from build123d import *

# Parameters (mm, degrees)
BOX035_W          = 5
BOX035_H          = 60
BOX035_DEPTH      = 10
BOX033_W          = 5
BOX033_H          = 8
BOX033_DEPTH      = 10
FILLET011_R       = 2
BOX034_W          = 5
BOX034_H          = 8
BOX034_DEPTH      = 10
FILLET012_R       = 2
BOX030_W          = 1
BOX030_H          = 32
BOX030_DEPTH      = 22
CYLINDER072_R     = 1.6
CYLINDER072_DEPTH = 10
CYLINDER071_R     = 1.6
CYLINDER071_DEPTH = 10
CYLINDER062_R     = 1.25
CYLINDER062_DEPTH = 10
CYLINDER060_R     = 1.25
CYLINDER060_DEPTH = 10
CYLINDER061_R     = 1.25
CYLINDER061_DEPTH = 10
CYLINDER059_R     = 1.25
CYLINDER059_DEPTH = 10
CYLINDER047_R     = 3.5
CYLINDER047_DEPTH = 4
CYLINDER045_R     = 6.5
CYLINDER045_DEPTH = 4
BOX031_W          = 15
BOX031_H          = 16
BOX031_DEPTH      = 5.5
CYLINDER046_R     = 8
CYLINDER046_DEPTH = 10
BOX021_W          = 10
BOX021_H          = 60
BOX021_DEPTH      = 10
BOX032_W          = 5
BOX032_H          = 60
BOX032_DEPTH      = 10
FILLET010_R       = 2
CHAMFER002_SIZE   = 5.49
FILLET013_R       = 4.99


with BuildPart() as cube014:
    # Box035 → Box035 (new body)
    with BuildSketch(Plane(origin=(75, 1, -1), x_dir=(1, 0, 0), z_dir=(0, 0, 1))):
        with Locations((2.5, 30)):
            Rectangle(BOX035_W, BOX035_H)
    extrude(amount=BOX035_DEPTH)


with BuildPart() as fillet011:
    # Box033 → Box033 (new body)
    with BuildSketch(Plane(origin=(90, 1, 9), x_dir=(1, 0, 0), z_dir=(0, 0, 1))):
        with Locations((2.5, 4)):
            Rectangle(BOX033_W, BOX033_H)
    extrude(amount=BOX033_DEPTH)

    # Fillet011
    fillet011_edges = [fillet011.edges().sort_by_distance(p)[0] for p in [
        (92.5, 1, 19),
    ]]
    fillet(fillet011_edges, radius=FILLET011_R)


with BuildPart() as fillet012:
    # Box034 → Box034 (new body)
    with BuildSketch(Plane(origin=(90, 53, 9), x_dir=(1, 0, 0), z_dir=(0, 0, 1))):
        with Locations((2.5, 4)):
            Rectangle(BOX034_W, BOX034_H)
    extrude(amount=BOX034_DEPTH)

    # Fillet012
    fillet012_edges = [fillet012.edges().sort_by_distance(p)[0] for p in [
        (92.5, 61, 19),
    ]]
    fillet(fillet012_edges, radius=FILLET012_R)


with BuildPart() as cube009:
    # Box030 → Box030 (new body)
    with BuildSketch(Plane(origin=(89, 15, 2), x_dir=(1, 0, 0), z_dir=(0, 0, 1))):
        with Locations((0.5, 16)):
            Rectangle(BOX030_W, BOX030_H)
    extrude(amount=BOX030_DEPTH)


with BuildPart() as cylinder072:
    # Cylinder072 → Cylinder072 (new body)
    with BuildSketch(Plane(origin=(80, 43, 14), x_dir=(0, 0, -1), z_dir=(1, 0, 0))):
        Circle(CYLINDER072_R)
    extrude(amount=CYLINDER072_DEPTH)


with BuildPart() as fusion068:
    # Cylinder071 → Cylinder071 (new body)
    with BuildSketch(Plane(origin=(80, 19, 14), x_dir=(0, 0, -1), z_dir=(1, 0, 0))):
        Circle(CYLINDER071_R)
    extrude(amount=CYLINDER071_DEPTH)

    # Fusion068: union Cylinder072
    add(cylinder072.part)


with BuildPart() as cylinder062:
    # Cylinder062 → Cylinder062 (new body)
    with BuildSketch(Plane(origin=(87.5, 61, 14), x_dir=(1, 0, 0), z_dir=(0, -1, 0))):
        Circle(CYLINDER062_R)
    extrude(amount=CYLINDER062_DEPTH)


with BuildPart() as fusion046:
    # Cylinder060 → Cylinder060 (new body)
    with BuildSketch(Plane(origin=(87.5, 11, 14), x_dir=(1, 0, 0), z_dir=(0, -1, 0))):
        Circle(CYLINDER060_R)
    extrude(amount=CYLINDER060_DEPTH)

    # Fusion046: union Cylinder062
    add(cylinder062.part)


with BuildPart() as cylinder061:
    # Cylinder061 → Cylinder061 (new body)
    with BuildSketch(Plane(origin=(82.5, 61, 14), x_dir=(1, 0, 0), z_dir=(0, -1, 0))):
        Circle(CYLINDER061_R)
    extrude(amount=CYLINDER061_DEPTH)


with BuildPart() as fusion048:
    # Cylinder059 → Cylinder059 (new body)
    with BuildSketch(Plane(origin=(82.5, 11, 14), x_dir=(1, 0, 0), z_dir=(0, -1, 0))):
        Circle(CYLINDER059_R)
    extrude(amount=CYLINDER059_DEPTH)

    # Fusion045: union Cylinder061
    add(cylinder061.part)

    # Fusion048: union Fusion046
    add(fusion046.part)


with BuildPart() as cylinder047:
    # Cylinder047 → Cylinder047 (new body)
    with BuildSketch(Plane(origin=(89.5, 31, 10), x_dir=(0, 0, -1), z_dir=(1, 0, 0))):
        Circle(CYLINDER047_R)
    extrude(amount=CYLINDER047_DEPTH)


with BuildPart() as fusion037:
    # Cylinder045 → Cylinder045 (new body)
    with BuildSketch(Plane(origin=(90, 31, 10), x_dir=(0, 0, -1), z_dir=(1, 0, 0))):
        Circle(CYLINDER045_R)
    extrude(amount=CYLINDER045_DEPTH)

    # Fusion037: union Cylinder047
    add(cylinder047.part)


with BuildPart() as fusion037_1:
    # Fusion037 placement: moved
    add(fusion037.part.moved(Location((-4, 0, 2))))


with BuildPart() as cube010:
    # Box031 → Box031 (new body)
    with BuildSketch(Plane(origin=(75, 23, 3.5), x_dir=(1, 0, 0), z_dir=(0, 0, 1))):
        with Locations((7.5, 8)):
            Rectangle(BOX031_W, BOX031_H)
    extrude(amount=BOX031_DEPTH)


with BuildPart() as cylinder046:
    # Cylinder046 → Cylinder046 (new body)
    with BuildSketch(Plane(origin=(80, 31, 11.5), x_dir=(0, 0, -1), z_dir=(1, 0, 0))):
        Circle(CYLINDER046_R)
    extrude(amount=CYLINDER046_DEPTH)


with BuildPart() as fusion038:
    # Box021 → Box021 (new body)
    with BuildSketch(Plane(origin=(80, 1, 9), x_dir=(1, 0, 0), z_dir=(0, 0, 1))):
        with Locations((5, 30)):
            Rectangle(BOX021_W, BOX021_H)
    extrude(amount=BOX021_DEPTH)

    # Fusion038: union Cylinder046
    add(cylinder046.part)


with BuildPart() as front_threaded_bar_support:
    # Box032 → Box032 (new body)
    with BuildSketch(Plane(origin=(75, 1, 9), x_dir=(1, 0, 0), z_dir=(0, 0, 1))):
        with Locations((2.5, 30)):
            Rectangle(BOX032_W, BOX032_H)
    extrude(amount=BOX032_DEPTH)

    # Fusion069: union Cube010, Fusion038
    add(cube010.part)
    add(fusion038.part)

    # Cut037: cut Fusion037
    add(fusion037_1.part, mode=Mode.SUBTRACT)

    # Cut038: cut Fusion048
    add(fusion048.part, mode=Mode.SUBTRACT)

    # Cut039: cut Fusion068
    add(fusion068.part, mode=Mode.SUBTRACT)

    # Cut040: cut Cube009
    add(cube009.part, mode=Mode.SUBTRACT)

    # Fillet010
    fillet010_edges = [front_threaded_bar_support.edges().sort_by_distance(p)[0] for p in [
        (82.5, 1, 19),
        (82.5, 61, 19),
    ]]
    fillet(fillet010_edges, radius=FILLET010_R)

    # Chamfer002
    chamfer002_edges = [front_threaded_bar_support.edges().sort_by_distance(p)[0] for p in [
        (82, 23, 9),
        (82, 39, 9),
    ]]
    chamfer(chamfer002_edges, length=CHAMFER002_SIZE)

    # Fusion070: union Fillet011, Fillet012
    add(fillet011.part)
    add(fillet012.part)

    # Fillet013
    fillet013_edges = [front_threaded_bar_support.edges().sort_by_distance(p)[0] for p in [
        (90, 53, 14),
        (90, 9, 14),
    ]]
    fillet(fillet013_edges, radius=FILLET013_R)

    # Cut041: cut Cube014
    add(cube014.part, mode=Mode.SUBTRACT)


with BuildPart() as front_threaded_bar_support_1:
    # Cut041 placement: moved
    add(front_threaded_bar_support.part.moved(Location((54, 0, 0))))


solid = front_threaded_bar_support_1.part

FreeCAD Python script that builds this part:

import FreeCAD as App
import Part
import Sketcher
from FreeCAD import Vector


def edges_at(feature, points):
    """Names of the edges that pass closest to the given points."""
    edges = feature.Shape.Edges
    near = lambda p: min(range(len(edges)), key=lambda i: edges[i].distToShape(Part.Vertex(*p))[0])
    return sorted({f"Edge{near(p) + 1}" for p in points})

doc = App.newDocument("Part")
body = doc.addObject("PartDesign::Body", "Body")

sketch1 = body.newObject("Sketcher::SketchObject", "Sketch")
sketch1.AttachmentSupport = (doc.getObject("XY_Plane"), [""])
sketch1.MapMode = "FlatFace"
sketch1.AttachmentOffset = App.Placement(Vector(0, 0, -1), App.Rotation())
sketch1.addGeometry([
    Part.LineSegment(Vector(75, 61, 0), Vector(75, 1, 0)),
    Part.LineSegment(Vector(75, 1, 0), Vector(80, 1, 0)),
    Part.LineSegment(Vector(80, 1, 0), Vector(80, 61, 0)),
    Part.LineSegment(Vector(80, 61, 0), Vector(75, 61, 0)),
], False)
sketch1.addConstraint([
    Sketcher.Constraint("Coincident", 0, 2, 1, 1),
    Sketcher.Constraint("Coincident", 1, 2, 2, 1),
    Sketcher.Constraint("Coincident", 2, 2, 3, 1),
    Sketcher.Constraint("Coincident", 3, 2, 0, 1),
    Sketcher.Constraint("Vertical", 0),
    Sketcher.Constraint("Horizontal", 1),
    Sketcher.Constraint("Vertical", 2),
    Sketcher.Constraint("Horizontal", 3),
    Sketcher.Constraint("DistanceX", 1, 1, 1, 2, 5.0),
    Sketcher.Constraint("DistanceY", 0, 2, 0, 1, 60.0),
    Sketcher.Constraint("DistanceX", -1, 1, 0, 2, 75.0),
    Sketcher.Constraint("DistanceY", -1, 1, 0, 2, 1.0),
])
pad1 = body.newObject("PartDesign::Pad", "Pad")
pad1.Profile = sketch1
pad1.Length = 10
body2 = doc.addObject("PartDesign::Body", "Body001")

sketch2 = body2.newObject("Sketcher::SketchObject", "Sketch001")
sketch2.AttachmentSupport = (doc.getObject("XY_Plane001"), [""])
sketch2.MapMode = "FlatFace"
sketch2.AttachmentOffset = App.Placement(Vector(0, 0, 9), App.Rotation())
sketch2.addGeometry([
    Part.LineSegment(Vector(90, 9, 0), Vector(90, 1, 0)),
    Part.LineSegment(Vector(90, 1, 0), Vector(95, 1, 0)),
    Part.LineSegment(Vector(95, 1, 0), Vector(95, 9, 0)),
    Part.LineSegment(Vector(95, 9, 0), Vector(90, 9, 0)),
], False)
sketch2.addConstraint([
    Sketcher.Constraint("Coincident", 0, 2, 1, 1),
    Sketcher.Constraint("Coincident", 1, 2, 2, 1),
    Sketcher.Constraint("Coincident", 2, 2, 3, 1),
    Sketcher.Constraint("Coincident", 3, 2, 0, 1),
    Sketcher.Constraint("Vertical", 0),
    Sketcher.Constraint("Horizontal", 1),
    Sketcher.Constraint("Vertical", 2),
    Sketcher.Constraint("Horizontal", 3),
    Sketcher.Constraint("DistanceX", 1, 1, 1, 2, 5.0),
    Sketcher.Constraint("DistanceY", 0, 2, 0, 1, 8.0),
    Sketcher.Constraint("DistanceX", -1, 1, 0, 2, 90.0),
    Sketcher.Constraint("DistanceY", -1, 1, 0, 2, 1.0),
])
pad2 = body2.newObject("PartDesign::Pad", "Pad001")
pad2.Profile = sketch2
pad2.Length = 10
doc.recompute()

fillet = body2.newObject("PartDesign::Fillet", "Fillet")
fillet.Base = (pad2, edges_at(pad2, [(92.5, 1, 19)]))
fillet.Radius = 2
body3 = doc.addObject("PartDesign::Body", "Body002")

sketch3 = body3.newObject("Sketcher::SketchObject", "Sketch002")
sketch3.AttachmentSupport = (doc.getObject("XY_Plane002"), [""])
sketch3.MapMode = "FlatFace"
sketch3.AttachmentOffset = App.Placement(Vector(0, 0, 9), App.Rotation())
sketch3.addGeometry([
    Part.LineSegment(Vector(90, 61, 0), Vector(90, 53, 0)),
    Part.LineSegment(Vector(90, 53, 0), Vector(95, 53, 0)),
    Part.LineSegment(Vector(95, 53, 0), Vector(95, 61, 0)),
    Part.LineSegment(Vector(95, 61, 0), Vector(90, 61, 0)),
], False)
sketch3.addConstraint([
    Sketcher.Constraint("Coincident", 0, 2, 1, 1),
    Sketcher.Constraint("Coincident", 1, 2, 2, 1),
    Sketcher.Constraint("Coincident", 2, 2, 3, 1),
    Sketcher.Constraint("Coincident", 3, 2, 0, 1),
    Sketcher.Constraint("Vertical", 0),
    Sketcher.Constraint("Horizontal", 1),
    Sketcher.Constraint("Vertical", 2),
    Sketcher.Constraint("Horizontal", 3),
    Sketcher.Constraint("DistanceX", 1, 1, 1, 2, 5.0),
    Sketcher.Constraint("DistanceY", 0, 2, 0, 1, 8.0),
    Sketcher.Constraint("DistanceX", -1, 1, 0, 2, 90.0),
    Sketcher.Constraint("DistanceY", -1, 1, 0, 2, 53.0),
])
pad3 = body3.newObject("PartDesign::Pad", "Pad002")
pad3.Profile = sketch3
pad3.Length = 10
doc.recompute()

fillet2 = body3.newObject("PartDesign::Fillet", "Fillet001")
fillet2.Base = (pad3, edges_at(pad3, [(92.5, 61, 19)]))
fillet2.Radius = 2
body4 = doc.addObject("PartDesign::Body", "Body003")

sketch4 = body4.newObject("Sketcher::SketchObject", "Sketch003")
sketch4.AttachmentSupport = (doc.getObject("XY_Plane003"), [""])
sketch4.MapMode = "FlatFace"
sketch4.AttachmentOffset = App.Placement(Vector(0, 0, 2), App.Rotation())
sketch4.addGeometry([
    Part.LineSegment(Vector(89, 47, 0), Vector(89, 15, 0)),
    Part.LineSegment(Vector(89, 15, 0), Vector(90, 15, 0)),
    Part.LineSegment(Vector(90, 15, 0), Vector(90, 47, 0)),
    Part.LineSegment(Vector(90, 47, 0), Vector(89, 47, 0)),
], False)
sketch4.addConstraint([
    Sketcher.Constraint("Coincident", 0, 2, 1, 1),
    Sketcher.Constraint("Coincident", 1, 2, 2, 1),
    Sketcher.Constraint("Coincident", 2, 2, 3, 1),
    Sketcher.Constraint("Coincident", 3, 2, 0, 1),
    Sketcher.Constraint("Vertical", 0),
    Sketcher.Constraint("Horizontal", 1),
    Sketcher.Constraint("Vertical", 2),
    Sketcher.Constraint("Horizontal", 3),
    Sketcher.Constraint("DistanceX", 1, 1, 1, 2, 1.0),
    Sketcher.Constraint("DistanceY", 0, 2, 0, 1, 32.0),
    Sketcher.Constraint("DistanceX", -1, 1, 0, 2, 89.0),
    Sketcher.Constraint("DistanceY", -1, 1, 0, 2, 15.0),
])
pad4 = body4.newObject("PartDesign::Pad", "Pad003")
pad4.Profile = sketch4
pad4.Length = 22
body5 = doc.addObject("PartDesign::Body", "Body004")

sketch5 = body5.newObject("Sketcher::SketchObject", "Sketch004")
sketch5.AttachmentSupport = (doc.getObject("YZ_Plane004"), [""])
sketch5.MapMode = "FlatFace"
sketch5.AttachmentOffset = App.Placement(Vector(0, 0, 80), App.Rotation())
sketch5.addGeometry(Part.Circle(Vector(43, 14, 0), Vector(0, 0, 1), 1.6), False)
sketch5.addConstraint([
    Sketcher.Constraint("Diameter", 0, 3.2),
    Sketcher.Constraint("DistanceX", -1, 1, 0, 3, 43.0),
    Sketcher.Constraint("DistanceY", -1, 1, 0, 3, 14.0),
])
pad5 = body5.newObject("PartDesign::Pad", "Pad004")
pad5.Profile = sketch5
pad5.Length = 10
body6 = doc.addObject("PartDesign::Body", "Body005")
body6.AllowCompound = True

sketch6 = body6.newObject("Sketcher::SketchObject", "Sketch005")
sketch6.AttachmentSupport = (doc.getObject("YZ_Plane005"), [""])
sketch6.MapMode = "FlatFace"
sketch6.AttachmentOffset = App.Placement(Vector(0, 0, 80), App.Rotation())
sketch6.addGeometry(Part.Circle(Vector(19, 14, 0), Vector(0, 0, 1), 1.6), False)
sketch6.addConstraint([
    Sketcher.Constraint("Diameter", 0, 3.2),
    Sketcher.Constraint("DistanceX", -1, 1, 0, 3, 19.0),
    Sketcher.Constraint("DistanceY", -1, 1, 0, 3, 14.0),
])
pad6 = body6.newObject("PartDesign::Pad", "Pad005")
pad6.Profile = sketch6
pad6.Length = 10
doc.recompute()

boolean = body6.newObject("PartDesign::Boolean", "Boolean")
boolean.Type = "Fuse"
boolean.addObjects([body5])
body7 = doc.addObject("PartDesign::Body", "Body006")

sketch7 = body7.newObject("Sketcher::SketchObject", "Sketch006")
sketch7.AttachmentSupport = (doc.getObject("XZ_Plane006"), [""])
sketch7.MapMode = "FlatFace"
sketch7.AttachmentOffset = App.Placement(Vector(0, 0, -61), App.Rotation())
sketch7.addGeometry(Part.Circle(Vector(87.5, 14, 0), Vector(0, 0, 1), 1.2), False)
sketch7.addConstraint([
    Sketcher.Constraint("Diameter", 0, 2.5),
    Sketcher.Constraint("DistanceY", -1, 1, 0, 3, 14.0),
    Sketcher.Constraint("DistanceX", -1, 1, 0, 3, 87.5),
])
pad7 = body7.newObject("PartDesign::Pad", "Pad006")
pad7.Profile = sketch7
pad7.Length = 10
body8 = doc.addObject("PartDesign::Body", "Body007")
body8.AllowCompound = True

sketch8 = body8.newObject("Sketcher::SketchObject", "Sketch007")
sketch8.AttachmentSupport = (doc.getObject("XZ_Plane007"), [""])
sketch8.MapMode = "FlatFace"
sketch8.AttachmentOffset = App.Placement(Vector(0, 0, -11), App.Rotation())
sketch8.addGeometry(Part.Circle(Vector(87.5, 14, 0), Vector(0, 0, 1), 1.2), False)
sketch8.addConstraint([
    Sketcher.Constraint("Diameter", 0, 2.5),
    Sketcher.Constraint("DistanceY", -1, 1, 0, 3, 14.0),
    Sketcher.Constraint("DistanceX", -1, 1, 0, 3, 87.5),
])
pad8 = body8.newObject("PartDesign::Pad", "Pad007")
pad8.Profile = sketch8
pad8.Length = 10
doc.recompute()

boolean2 = body8.newObject("PartDesign::Boolean", "Boolean001")
boolean2.Type = "Fuse"
boolean2.addObjects([body7])
body9 = doc.addObject("PartDesign::Body", "Body008")

sketch9 = body9.newObject("Sketcher::SketchObject", "Sketch008")
sketch9.AttachmentSupport = (doc.getObject("XZ_Plane008"), [""])
sketch9.MapMode = "FlatFace"
sketch9.AttachmentOffset = App.Placement(Vector(0, 0, -61), App.Rotation())
sketch9.addGeometry(Part.Circle(Vector(82.5, 14, 0), Vector(0, 0, 1), 1.2), False)
sketch9.addConstraint([
    Sketcher.Constraint("Diameter", 0, 2.5),
    Sketcher.Constraint("DistanceY", -1, 1, 0, 3, 14.0),
    Sketcher.Constraint("DistanceX", -1, 1, 0, 3, 82.5),
])
pad9 = body9.newObject("PartDesign::Pad", "Pad008")
pad9.Profile = sketch9
pad9.Length = 10
body10 = doc.addObject("PartDesign::Body", "Body009")
body10.AllowCompound = True

sketch10 = body10.newObject("Sketcher::SketchObject", "Sketch009")
sketch10.AttachmentSupport = (doc.getObject("XZ_Plane009"), [""])
sketch10.MapMode = "FlatFace"
sketch10.AttachmentOffset = App.Placement(Vector(0, 0, -11), App.Rotation())
sketch10.addGeometry(Part.Circle(Vector(82.5, 14, 0), Vector(0, 0, 1), 1.2), False)
sketch10.addConstraint([
    Sketcher.Constraint("Diameter", 0, 2.5),
    Sketcher.Constraint("DistanceY", -1, 1, 0, 3, 14.0),
    Sketcher.Constraint("DistanceX", -1, 1, 0, 3, 82.5),
])
pad10 = body10.newObject("PartDesign::Pad", "Pad009")
pad10.Profile = sketch10
pad10.Length = 10
doc.recompute()

boolean3 = body10.newObject("PartDesign::Boolean", "Boolean002")
boolean3.Type = "Fuse"
boolean3.addObjects([body9])
doc.recompute()

boolean4 = body10.newObject("PartDesign::Boolean", "Boolean003")
boolean4.Type = "Fuse"
boolean4.addObjects([body8])
body11 = doc.addObject("PartDesign::Body", "Body010")

sketch11 = body11.newObject("Sketcher::SketchObject", "Sketch010")
sketch11.AttachmentSupport = (doc.getObject("YZ_Plane010"), [""])
sketch11.MapMode = "FlatFace"
sketch11.AttachmentOffset = App.Placement(Vector(0, 0, 89.5), App.Rotation())
sketch11.addGeometry(Part.Circle(Vector(31, 10, 0), Vector(0, 0, 1), 3.5), False)
sketch11.addConstraint([
    Sketcher.Constraint("Diameter", 0, 7.0),
    Sketcher.Constraint("DistanceX", -1, 1, 0, 3, 31.0),
    Sketcher.Constraint("DistanceY", -1, 1, 0, 3, 10.0),
])
pad11 = body11.newObject("PartDesign::Pad", "Pad010")
pad11.Profile = sketch11
pad11.Length = 4
body12 = doc.addObject("PartDesign::Body", "Body011")

sketch12 = body12.newObject("Sketcher::SketchObject", "Sketch011")
sketch12.AttachmentSupport = (doc.getObject("YZ_Plane011"), [""])
sketch12.MapMode = "FlatFace"
sketch12.AttachmentOffset = App.Placement(Vector(0, 0, 90), App.Rotation())
sketch12.addGeometry(Part.Circle(Vector(31, 10, 0), Vector(0, 0, 1), 6), False)
sketch12.addConstraint([
    Sketcher.Constraint("Diameter", 0, 13.0),
    Sketcher.Constraint("DistanceX", -1, 1, 0, 3, 31.0),
    Sketcher.Constraint("DistanceY", -1, 1, 0, 3, 10.0),
])
pad12 = body12.newObject("PartDesign::Pad", "Pad011")
pad12.Profile = sketch12
pad12.Length = 4
doc.recompute()

boolean5 = body12.newObject("PartDesign::Boolean", "Boolean004")
boolean5.Type = "Fuse"
boolean5.addObjects([body11])
body13 = doc.addObject("PartDesign::Body", "Body012")
doc.recompute()

body12.Placement = App.Placement(Vector(-4, 0, 2), App.Rotation(Vector(0, 0, 1), 0))
boolean6 = body13.newObject("PartDesign::Boolean", "Boolean005")
boolean6.Type = "Fuse"
boolean6.addObjects([body12])
body14 = doc.addObject("PartDesign::Body", "Body013")

sketch13 = body14.newObject("Sketcher::SketchObject", "Sketch012")
sketch13.AttachmentSupport = (doc.getObject("XY_Plane013"), [""])
sketch13.MapMode = "FlatFace"
sketch13.AttachmentOffset = App.Placement(Vector(0, 0, 3.5), App.Rotation())
sketch13.addGeometry([
    Part.LineSegment(Vector(75, 39, 0), Vector(75, 23, 0)),
    Part.LineSegment(Vector(75, 23, 0), Vector(90, 23, 0)),
    Part.LineSegment(Vector(90, 23, 0), Vector(90, 39, 0)),
    Part.LineSegment(Vector(90, 39, 0), Vector(75, 39, 0)),
], False)
sketch13.addConstraint([
    Sketcher.Constraint("Coincident", 0, 2, 1, 1),
    Sketcher.Constraint("Coincident", 1, 2, 2, 1),
    Sketcher.Constraint("Coincident", 2, 2, 3, 1),
    Sketcher.Constraint("Coincident", 3, 2, 0, 1),
    Sketcher.Constraint("Vertical", 0),
    Sketcher.Constraint("Horizontal", 1),
    Sketcher.Constraint("Vertical", 2),
    Sketcher.Constraint("Horizontal", 3),
    Sketcher.Constraint("DistanceX", 1, 1, 1, 2, 15.0),
    Sketcher.Constraint("DistanceY", 0, 2, 0, 1, 16.0),
    Sketcher.Constraint("DistanceX", -1, 1, 0, 2, 75.0),
    Sketcher.Constraint("DistanceY", -1, 1, 0, 2, 23.0),
])
pad13 = body14.newObject("PartDesign::Pad", "Pad012")
pad13.Profile = sketch13
pad13.Length = 5.5
body15 = doc.addObject("PartDesign::Body", "Body014")

sketch14 = body15.newObject("Sketcher::SketchObject", "Sketch013")
sketch14.AttachmentSupport = (doc.getObject("YZ_Plane014"), [""])
sketch14.MapMode = "FlatFace"
sketch14.AttachmentOffset = App.Placement(Vector(0, 0, 80), App.Rotation())
sketch14.addGeometry(Part.Circle(Vector(31, 12, 0), Vector(0, 0, 1), 8), False)
sketch14.addConstraint([
    Sketcher.Constraint("Diameter", 0, 16.0),
    Sketcher.Constraint("DistanceX", -1, 1, 0, 3, 31.0),
    Sketcher.Constraint("DistanceY", -1, 1, 0, 3, 11.5),
])
pad14 = body15.newObject("PartDesign::Pad", "Pad013")
pad14.Profile = sketch14
pad14.Length = 10
body16 = doc.addObject("PartDesign::Body", "Body015")

sketch15 = body16.newObject("Sketcher::SketchObject", "Sketch014")
sketch15.AttachmentSupport = (doc.getObject("XY_Plane015"), [""])
sketch15.MapMode = "FlatFace"
sketch15.AttachmentOffset = App.Placement(Vector(0, 0, 9), App.Rotation())
sketch15.addGeometry([
    Part.LineSegment(Vector(80, 61, 0), Vector(80, 1, 0)),
    Part.LineSegment(Vector(80, 1, 0), Vector(90, 1, 0)),
    Part.LineSegment(Vector(90, 1, 0), Vector(90, 61, 0)),
    Part.LineSegment(Vector(90, 61, 0), Vector(80, 61, 0)),
], False)
sketch15.addConstraint([
    Sketcher.Constraint("Coincident", 0, 2, 1, 1),
    Sketcher.Constraint("Coincident", 1, 2, 2, 1),
    Sketcher.Constraint("Coincident", 2, 2, 3, 1),
    Sketcher.Constraint("Coincident", 3, 2, 0, 1),
    Sketcher.Constraint("Vertical", 0),
    Sketcher.Constraint("Horizontal", 1),
    Sketcher.Constraint("Vertical", 2),
    Sketcher.Constraint("Horizontal", 3),
    Sketcher.Constraint("DistanceX", 1, 1, 1, 2, 10.0),
    Sketcher.Constraint("DistanceY", 0, 2, 0, 1, 60.0),
    Sketcher.Constraint("DistanceX", -1, 1, 0, 2, 80.0),
    Sketcher.Constraint("DistanceY", -1, 1, 0, 2, 1.0),
])
pad15 = body16.newObject("PartDesign::Pad", "Pad014")
pad15.Profile = sketch15
pad15.Length = 10
doc.recompute()

boolean7 = body16.newObject("PartDesign::Boolean", "Boolean006")
boolean7.Type = "Fuse"
boolean7.addObjects([body15])
body17 = doc.addObject("PartDesign::Body", "Body016")

sketch16 = body17.newObject("Sketcher::SketchObject", "Sketch015")
sketch16.AttachmentSupport = (doc.getObject("XY_Plane016"), [""])
sketch16.MapMode = "FlatFace"
sketch16.AttachmentOffset = App.Placement(Vector(0, 0, 9), App.Rotation())
sketch16.addGeometry([
    Part.LineSegment(Vector(75, 61, 0), Vector(75, 1, 0)),
    Part.LineSegment(Vector(75, 1, 0), Vector(80, 1, 0)),
    Part.LineSegment(Vector(80, 1, 0), Vector(80, 61, 0)),
    Part.LineSegment(Vector(80, 61, 0), Vector(75, 61, 0)),
], False)
sketch16.addConstraint([
    Sketcher.Constraint("Coincident", 0, 2, 1, 1),
    Sketcher.Constraint("Coincident", 1, 2, 2, 1),
    Sketcher.Constraint("Coincident", 2, 2, 3, 1),
    Sketcher.Constraint("Coincident", 3, 2, 0, 1),
    Sketcher.Constraint("Vertical", 0),
    Sketcher.Constraint("Horizontal", 1),
    Sketcher.Constraint("Vertical", 2),
    Sketcher.Constraint("Horizontal", 3),
    Sketcher.Constraint("DistanceX", 1, 1, 1, 2, 5.0),
    Sketcher.Constraint("DistanceY", 0, 2, 0, 1, 60.0),
    Sketcher.Constraint("DistanceX", -1, 1, 0, 2, 75.0),
    Sketcher.Constraint("DistanceY", -1, 1, 0, 2, 1.0),
])
pad16 = body17.newObject("PartDesign::Pad", "Pad015")
pad16.Profile = sketch16
pad16.Length = 10
doc.recompute()

boolean8 = body17.newObject("PartDesign::Boolean", "Boolean007")
boolean8.Type = "Fuse"
boolean8.addObjects([body14])
doc.recompute()

boolean9 = body17.newObject("PartDesign::Boolean", "Boolean008")
boolean9.Type = "Fuse"
boolean9.addObjects([body16])
doc.recompute()

boolean10 = body17.newObject("PartDesign::Boolean", "Boolean009")
boolean10.Type = "Cut"
boolean10.addObjects([body13])
doc.recompute()

boolean11 = body17.newObject("PartDesign::Boolean", "Boolean010")
boolean11.Type = "Cut"
boolean11.addObjects([body10])
doc.recompute()

boolean12 = body17.newObject("PartDesign::Boolean", "Boolean011")
boolean12.Type = "Cut"
boolean12.addObjects([body6])
doc.recompute()

boolean13 = body17.newObject("PartDesign::Boolean", "Boolean012")
boolean13.Type = "Cut"
boolean13.addObjects([body4])
doc.recompute()

fillet3 = body17.newObject("PartDesign::Fillet", "Fillet002")
fillet3.Base = (boolean13, edges_at(boolean13, [(82.5, 1, 19), (82.5, 61, 19)]))
fillet3.Radius = 2
doc.recompute()

chamfer = body17.newObject("PartDesign::Chamfer", "Chamfer")
chamfer.Base = (fillet3, edges_at(fillet3, [(82, 23, 9), (82, 39, 9)]))
chamfer.Size = 5.49
doc.recompute()

boolean14 = body17.newObject("PartDesign::Boolean", "Boolean013")
boolean14.Type = "Fuse"
boolean14.addObjects([body2])
doc.recompute()

boolean15 = body17.newObject("PartDesign::Boolean", "Boolean014")
boolean15.Type = "Fuse"
boolean15.addObjects([body3])
doc.recompute()

fillet4 = body17.newObject("PartDesign::Fillet", "Fillet003")
fillet4.Base = (boolean15, edges_at(boolean15, [(90, 53, 14), (90, 9, 14)]))
fillet4.Radius = 4.99
doc.recompute()

boolean16 = body17.newObject("PartDesign::Boolean", "Boolean015")
boolean16.Type = "Cut"
boolean16.addObjects([body])
body18 = doc.addObject("PartDesign::Body", "Body017")
doc.recompute()

body17.Placement = App.Placement(Vector(54, 0, 0), App.Rotation(Vector(0, 0, 1), 0))
boolean17 = body18.newObject("PartDesign::Boolean", "Boolean016")
boolean17.Type = "Fuse"
boolean17.addObjects([body17])

doc.recompute()
